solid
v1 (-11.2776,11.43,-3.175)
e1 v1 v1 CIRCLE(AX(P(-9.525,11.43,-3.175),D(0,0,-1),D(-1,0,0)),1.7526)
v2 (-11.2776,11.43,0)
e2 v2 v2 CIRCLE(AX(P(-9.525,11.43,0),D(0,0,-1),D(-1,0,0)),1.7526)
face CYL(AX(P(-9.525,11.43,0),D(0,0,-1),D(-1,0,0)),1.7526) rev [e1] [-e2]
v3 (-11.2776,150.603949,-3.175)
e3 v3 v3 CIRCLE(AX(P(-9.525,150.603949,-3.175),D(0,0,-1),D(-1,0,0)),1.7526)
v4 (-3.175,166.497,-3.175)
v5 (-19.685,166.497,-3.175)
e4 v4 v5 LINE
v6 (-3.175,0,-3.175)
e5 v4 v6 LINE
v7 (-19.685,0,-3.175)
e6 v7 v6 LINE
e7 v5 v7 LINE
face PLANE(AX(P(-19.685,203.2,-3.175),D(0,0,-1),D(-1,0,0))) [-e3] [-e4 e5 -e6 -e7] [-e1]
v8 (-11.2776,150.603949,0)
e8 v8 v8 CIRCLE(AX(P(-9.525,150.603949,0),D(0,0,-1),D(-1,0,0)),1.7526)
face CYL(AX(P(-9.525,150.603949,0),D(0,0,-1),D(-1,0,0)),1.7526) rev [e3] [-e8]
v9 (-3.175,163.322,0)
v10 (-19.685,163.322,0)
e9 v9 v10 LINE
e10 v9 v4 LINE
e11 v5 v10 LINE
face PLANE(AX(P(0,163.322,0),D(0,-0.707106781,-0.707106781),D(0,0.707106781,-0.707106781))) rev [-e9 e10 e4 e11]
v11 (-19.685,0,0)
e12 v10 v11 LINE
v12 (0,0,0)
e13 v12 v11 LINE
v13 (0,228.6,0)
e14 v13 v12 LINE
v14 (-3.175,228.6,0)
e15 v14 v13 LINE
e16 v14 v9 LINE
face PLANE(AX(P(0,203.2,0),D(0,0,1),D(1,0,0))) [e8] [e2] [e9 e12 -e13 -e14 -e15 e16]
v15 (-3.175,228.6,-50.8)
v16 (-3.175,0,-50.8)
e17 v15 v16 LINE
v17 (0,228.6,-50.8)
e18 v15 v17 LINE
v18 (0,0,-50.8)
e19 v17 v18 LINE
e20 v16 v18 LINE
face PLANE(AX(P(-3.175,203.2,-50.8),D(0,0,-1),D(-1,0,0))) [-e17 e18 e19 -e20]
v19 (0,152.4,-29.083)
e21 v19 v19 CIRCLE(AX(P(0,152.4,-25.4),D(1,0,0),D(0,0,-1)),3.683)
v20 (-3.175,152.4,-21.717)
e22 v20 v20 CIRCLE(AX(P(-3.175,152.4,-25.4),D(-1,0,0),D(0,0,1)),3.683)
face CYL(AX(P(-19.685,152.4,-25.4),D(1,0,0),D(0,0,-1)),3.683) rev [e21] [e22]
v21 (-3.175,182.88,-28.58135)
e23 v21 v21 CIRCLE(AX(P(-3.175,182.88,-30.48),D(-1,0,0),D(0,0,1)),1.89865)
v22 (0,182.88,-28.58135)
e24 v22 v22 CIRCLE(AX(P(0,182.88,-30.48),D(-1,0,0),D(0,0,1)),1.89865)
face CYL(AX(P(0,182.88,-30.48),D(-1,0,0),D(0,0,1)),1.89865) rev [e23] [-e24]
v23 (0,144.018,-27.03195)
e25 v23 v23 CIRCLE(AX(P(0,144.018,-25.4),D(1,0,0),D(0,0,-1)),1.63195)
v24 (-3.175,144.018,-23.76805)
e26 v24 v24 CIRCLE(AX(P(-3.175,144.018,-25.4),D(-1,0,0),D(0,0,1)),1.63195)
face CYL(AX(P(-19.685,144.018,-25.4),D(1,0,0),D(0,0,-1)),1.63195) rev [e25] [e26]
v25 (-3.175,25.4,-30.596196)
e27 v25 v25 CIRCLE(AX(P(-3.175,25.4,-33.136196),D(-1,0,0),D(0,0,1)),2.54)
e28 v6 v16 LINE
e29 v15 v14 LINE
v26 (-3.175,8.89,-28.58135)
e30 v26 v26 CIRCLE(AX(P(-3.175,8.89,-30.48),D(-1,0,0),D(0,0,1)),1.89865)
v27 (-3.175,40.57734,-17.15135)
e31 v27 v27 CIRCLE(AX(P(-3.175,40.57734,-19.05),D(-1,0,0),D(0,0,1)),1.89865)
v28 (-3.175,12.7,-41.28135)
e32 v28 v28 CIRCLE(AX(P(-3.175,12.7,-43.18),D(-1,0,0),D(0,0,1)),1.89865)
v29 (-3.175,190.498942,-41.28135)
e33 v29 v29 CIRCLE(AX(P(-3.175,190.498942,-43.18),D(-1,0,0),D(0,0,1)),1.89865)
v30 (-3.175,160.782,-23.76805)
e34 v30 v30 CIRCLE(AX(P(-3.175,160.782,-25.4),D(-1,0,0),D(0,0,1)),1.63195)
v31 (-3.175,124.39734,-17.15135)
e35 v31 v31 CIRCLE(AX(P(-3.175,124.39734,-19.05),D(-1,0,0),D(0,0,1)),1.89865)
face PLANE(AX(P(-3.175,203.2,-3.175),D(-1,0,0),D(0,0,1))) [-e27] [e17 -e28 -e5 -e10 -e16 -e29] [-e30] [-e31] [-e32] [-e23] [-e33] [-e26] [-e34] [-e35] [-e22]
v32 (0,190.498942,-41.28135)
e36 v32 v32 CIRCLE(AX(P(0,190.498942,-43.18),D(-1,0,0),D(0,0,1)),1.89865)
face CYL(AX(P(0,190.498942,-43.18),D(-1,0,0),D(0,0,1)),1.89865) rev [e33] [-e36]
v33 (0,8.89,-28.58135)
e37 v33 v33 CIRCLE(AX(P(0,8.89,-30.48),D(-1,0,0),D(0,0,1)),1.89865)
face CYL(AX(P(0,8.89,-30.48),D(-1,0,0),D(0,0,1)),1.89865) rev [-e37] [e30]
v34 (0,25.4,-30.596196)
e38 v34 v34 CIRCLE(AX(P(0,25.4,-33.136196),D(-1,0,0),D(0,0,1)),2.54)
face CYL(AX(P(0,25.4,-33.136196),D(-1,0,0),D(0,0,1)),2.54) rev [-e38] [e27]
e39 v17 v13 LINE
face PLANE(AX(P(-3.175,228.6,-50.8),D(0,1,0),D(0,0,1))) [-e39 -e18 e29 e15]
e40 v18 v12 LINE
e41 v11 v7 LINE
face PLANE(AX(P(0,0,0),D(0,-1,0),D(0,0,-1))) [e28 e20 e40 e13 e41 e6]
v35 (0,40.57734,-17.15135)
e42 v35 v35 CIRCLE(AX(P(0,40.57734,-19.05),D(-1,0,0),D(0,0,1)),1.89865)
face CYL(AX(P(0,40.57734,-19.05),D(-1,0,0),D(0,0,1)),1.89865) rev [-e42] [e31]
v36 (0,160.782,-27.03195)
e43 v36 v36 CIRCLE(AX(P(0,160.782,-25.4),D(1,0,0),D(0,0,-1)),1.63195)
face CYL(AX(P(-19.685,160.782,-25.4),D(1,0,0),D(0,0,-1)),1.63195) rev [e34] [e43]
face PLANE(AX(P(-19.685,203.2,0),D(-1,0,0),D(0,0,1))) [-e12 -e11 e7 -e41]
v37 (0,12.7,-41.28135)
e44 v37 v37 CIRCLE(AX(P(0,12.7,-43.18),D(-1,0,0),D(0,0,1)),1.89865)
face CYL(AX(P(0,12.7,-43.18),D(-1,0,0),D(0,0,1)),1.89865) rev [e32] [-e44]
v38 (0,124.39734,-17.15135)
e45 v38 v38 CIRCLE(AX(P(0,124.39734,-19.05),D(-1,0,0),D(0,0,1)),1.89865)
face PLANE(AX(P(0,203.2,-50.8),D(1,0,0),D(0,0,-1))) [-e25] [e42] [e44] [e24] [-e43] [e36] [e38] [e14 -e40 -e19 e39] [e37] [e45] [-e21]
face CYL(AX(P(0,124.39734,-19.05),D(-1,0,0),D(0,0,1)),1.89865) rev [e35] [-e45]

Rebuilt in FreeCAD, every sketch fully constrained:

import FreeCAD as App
import Part
import Sketcher

V = App.Vector
Q = App.Units.Quantity


def add_polygon(sketch, points):
    """Adds a closed chain of lines whose ends are joined by coincident constraints."""
    first, n = sketch.GeometryCount, len(points)
    for a, b in zip(points, points[1:] + points[:1]):
        sketch.addGeometry(Part.LineSegment(App.Vector(*a, 0), App.Vector(*b, 0)), False)
    for i in range(n):
        sketch.addConstraint(Sketcher.Constraint("Coincident", first + i, 2, first + (i + 1) % n, 1))

doc = App.newDocument("Part")
body = doc.addObject("PartDesign::Body", "Body")

# Sketch on XZ plane
sketch1 = doc.addObject("Sketcher::SketchObject", "Sketch")
body.addObject(sketch1)
sketch1.AttachmentSupport = (doc.XZ_Plane, [""])
sketch1.MapMode = "FlatFace"
add_polygon(sketch1, [(-19.7, 0), (0, 0), (0, -50.8), (-3.2, -50.8), (-3.2, -3.2), (-19.7, -3.2)])  # lines 0-5
sketch1.addConstraint([
    Sketcher.Constraint("Horizontal", 0),
    Sketcher.Constraint("Vertical", 1),
    Sketcher.Constraint("Horizontal", 2),
    Sketcher.Constraint("Vertical", 3),
    Sketcher.Constraint("Horizontal", 4),
    Sketcher.Constraint("Vertical", 5),
    Sketcher.Constraint("Coincident", 0, 2, -1, 1),
    Sketcher.Constraint("Equal", 2, 5),
    Sketcher.Constraint("DistanceY", 1, 2, 1, 1, Q("2 in")),
    Sketcher.Constraint("DistanceX", 4, 2, 4, 1, Q("0.65 in")),
    Sketcher.Constraint("DistanceX", 0, 1, 0, 2, Q("0.775 in")),
])
pad1 = doc.addObject("PartDesign::Pad", "Pad")
body.addObject(pad1)
pad1.Profile = sketch1
pad1.Length = Q("8 in")
pad1.Reversed = True

# Sketch on YZ plane
sketch2 = doc.addObject("Sketcher::SketchObject", "Sketch001")
body.addObject(sketch2)
sketch2.AttachmentSupport = (doc.YZ_Plane, [""])
sketch2.MapMode = "FlatFace"
sketch2.AttachmentOffset = App.Placement(V(0, 0, -0.125 * 25.4), App.Rotation())
add_polygon(sketch2, [(214, -51), (163, 0), (163, 33), (256, 33), (256, -61), (214, -61)])  # lines 0-5
sketch2.addConstraint([
    Sketcher.Constraint("Vertical", 1),
    Sketcher.Constraint("Horizontal", 2),
    Sketcher.Constraint("Vertical", 3),
    Sketcher.Constraint("Horizontal", 4),
    Sketcher.Constraint("Vertical", 5),
    Sketcher.Constraint("PointOnObject", 0, 2, -1),
    Sketcher.Constraint("DistanceY", 5, 2, -1, 1, Q("2 in")),
    Sketcher.Constraint("Angle", 0, Q("135 deg")),
    Sketcher.Constraint("DistanceX", -1, 1, 0, 2, Q("6.43 in")),
    Sketcher.Constraint("DistanceY", 1, 1, 1, 2, Q("33.196572 mm")),
    Sketcher.Constraint("DistanceY", 3, 2, 3, 1, Q("94.01982 mm")),
    Sketcher.Constraint("DistanceX", 2, 1, 2, 2, Q("92.725204 mm")),
])
pocket1 = doc.addObject("PartDesign::Pocket", "Pocket")
body.addObject(pocket1)
pocket1.Profile = sketch2
pocket1.Type = "ThroughAll"
pocket1.Midplane = True

# Sketch on YZ plane
sketch3 = doc.addObject("Sketcher::SketchObject", "Sketch002")
body.addObject(sketch3)
sketch3.AttachmentSupport = (doc.YZ_Plane, [""])
sketch3.MapMode = "FlatFace"
sketch3.addGeometry([
    Part.Circle(V(152.4, -25.4, 0), V(0, 0, 1), 3.7),
    Part.Circle(V(160.8, -25.4, 0), V(0, 0, 1), 1.6),
    Part.Circle(V(144, -25.4, 0), V(0, 0, 1), 1.6),
], False)
sketch3.addConstraint([
    Sketcher.Constraint("Equal", 1, 2),
    Sketcher.Constraint("Horizontal", 0, 3, 1, 3),
    Sketcher.Constraint("Horizontal", 1, 3, 2, 3),
    Sketcher.Constraint("Diameter", 0, Q("0.29 in")),
    Sketcher.Constraint("DistanceX", -1, 1, 0, 3, Q("6 in")),
    Sketcher.Constraint("DistanceY", 0, 3, -1, 1, Q("1 in")),
    Sketcher.Constraint("Diameter", 1, Q("0.1285 in")),
    Sketcher.Constraint("DistanceX", -1, 1, 1, 3, Q("6.33 in")),
    Sketcher.Constraint("DistanceX", -1, 1, 2, 3, Q("5.67 in")),
])
pocket2 = doc.addObject("PartDesign::Pocket", "Pocket001")
body.addObject(pocket2)
pocket2.Profile = sketch3
pocket2.Type = "ThroughAll"

# Sketch on YZ plane
sketch4 = doc.addObject("Sketcher::SketchObject", "Sketch003")
body.addObject(sketch4)
sketch4.AttachmentSupport = (doc.YZ_Plane, [""])
sketch4.MapMode = "FlatFace"
sketch4.AttachmentOffset = App.Placement(V(0, 0, -0.125 * 25.4), App.Rotation())
sketch4.addGeometry([
    Part.Circle(V(182.9, -30.5, 0), V(0, 0, 1), 1.9),
    Part.Circle(V(8.9, -30.5, 0), V(0, 0, 1), 1.9),
], False)
sketch4.addConstraint([
    Sketcher.Constraint("Equal", 0, 1),
    Sketcher.Constraint("Horizontal", 0, 3, 1, 3),
    Sketcher.Constraint("Diameter", 0, Q("0.1495 in")),
    Sketcher.Constraint("DistanceX", -1, 1, 0, 3, Q("7.2 in")),
    Sketcher.Constraint("DistanceY", 0, 3, -1, 1, Q("1.2 in")),
    Sketcher.Constraint("DistanceX", -1, 1, 1, 3, Q("0.35 in")),
])
pocket3 = doc.addObject("PartDesign::Pocket", "Pocket002")
body.addObject(pocket3)
pocket3.Profile = sketch4
pocket3.Type = "ThroughAll"
pocket3.Reversed = True

# Sketch on YZ plane
sketch5 = doc.addObject("Sketcher::SketchObject", "Sketch004")
body.addObject(sketch5)
sketch5.AttachmentSupport = (doc.YZ_Plane, [""])
sketch5.MapMode = "FlatFace"
sketch5.AttachmentOffset = App.Placement(V(0, 0, -0.125 * 25.4), App.Rotation())
sketch5.addGeometry([
    Part.Circle(V(40.6, -19.1, 0), V(0, 0, 1), 1.9),
    Part.Circle(V(124.4, -19.1, 0), V(0, 0, 1), 1.9),
], False)
sketch5.addConstraint([
    Sketcher.Constraint("Equal", 0, 1),
    Sketcher.Constraint("Horizontal", 0, 3, 1, 3),
    Sketcher.Constraint("Diameter", 0, Q("0.1495 in")),
    Sketcher.Constraint("DistanceX", 0, 3, 1, 3, Q("3.3 in")),
    Sketcher.Constraint("DistanceY", 0, 3, -1, 1, Q("0.75 in")),
    Sketcher.Constraint("DistanceX", -1, 1, 0, 3, Q("40.57734 mm")),
])
pocket4 = doc.addObject("PartDesign::Pocket", "Pocket003")
body.addObject(pocket4)
pocket4.Profile = sketch5
pocket4.Type = "ThroughAll"
pocket4.Reversed = True

# Sketch on XY plane
sketch6 = doc.addObject("Sketcher::SketchObject", "Sketch005")
body.addObject(sketch6)
sketch6.AttachmentSupport = (doc.XY_Plane, [""])
sketch6.MapMode = "FlatFace"
sketch6.AttachmentOffset = App.Placement(V(0, 0, -0.125 * 25.4), App.Rotation())
sketch6.addGeometry([
    Part.Circle(V(-9.5, 11.4, 0), V(0, 0, 1), 1.8),
    Part.Circle(V(-9.5, 150.6, 0), V(0, 0, 1), 1.8),
], False)
sketch6.addConstraint([
    Sketcher.Constraint("Equal", 0, 1),
    Sketcher.Constraint("Vertical", 0, 3, 1, 3),
    Sketcher.Constraint("Diameter", 0, Q("0.138 in")),
    Sketcher.Constraint("DistanceY", -1, 1, 0, 3, Q("0.45 in")),
    Sketcher.Constraint("DistanceX", 0, 3, -1, 1, Q("0.375 in")),
    Sketcher.Constraint("DistanceY", -1, 1, 1, 3, Q("150.603949 mm")),
])
pocket5 = doc.addObject("PartDesign::Pocket", "Pocket004")
body.addObject(pocket5)
pocket5.Profile = sketch6
pocket5.Type = "ThroughAll"
pocket5.Reversed = True

# Sketch on YZ plane
sketch7 = doc.addObject("Sketcher::SketchObject", "Sketch006")
body.addObject(sketch7)
sketch7.AttachmentSupport = (doc.YZ_Plane, [""])
sketch7.MapMode = "FlatFace"
add_polygon(sketch7, [(229, 0), (163, 0), (203, -40), (203, -51), (229, -51)])  # lines 0-4
sketch7.addConstraint([
    Sketcher.Constraint("Horizontal", 0),
    Sketcher.Constraint("Vertical", 2),
    Sketcher.Constraint("Horizontal", 3),
    Sketcher.Constraint("Vertical", 4),
    Sketcher.Constraint("PointOnObject", 0, 2, -1),
    Sketcher.Constraint("DistanceX", 3, 1, 3, 2, Q("1 in")),
    Sketcher.Constraint("DistanceY", 4, 1, 4, 2, Q("2 in")),
    Sketcher.Constraint("DistanceX", -1, 1, 1, 2, Q("8 in")),
    Sketcher.Constraint("Angle", 1, Q("-45 deg")),
    Sketcher.Constraint("DistanceX", 0, 2, 0, 1, Q("2.57 in")),
])
pad2 = doc.addObject("PartDesign::Pad", "Pad001")
body.addObject(pad2)
pad2.Profile = sketch7
pad2.Length = Q("0.125 in")
pad2.Reversed = True

# Sketch on YZ plane
sketch8 = doc.addObject("Sketcher::SketchObject", "Sketch007")
body.addObject(sketch8)
sketch8.AttachmentSupport = (doc.YZ_Plane, [""])
sketch8.MapMode = "FlatFace"
sketch8.AttachmentOffset = App.Placement(V(0, 0, -0.125 * 25.4), App.Rotation())
sketch8.addGeometry(Part.Circle(V(25.4, -33.1, 0), V(0, 0, 1), 2.5), False)
sketch8.addConstraint([
    Sketcher.Constraint("Diameter", 0, Q("0.2 in")),
    Sketcher.Constraint("DistanceX", -1, 1, 0, 3, Q("1 in")),
    Sketcher.Constraint("DistanceY", 0, 3, -1, 1, Q("33.136196 mm")),
])
pocket6 = doc.addObject("PartDesign::Pocket", "Pocket005")
body.addObject(pocket6)
pocket6.Profile = sketch8
pocket6.Type = "ThroughAll"
pocket6.Reversed = True

# Sketch on YZ plane
sketch9 = doc.addObject("Sketcher::SketchObject", "Sketch008")
body.addObject(sketch9)
sketch9.AttachmentSupport = (doc.YZ_Plane, [""])
sketch9.MapMode = "FlatFace"
sketch9.AttachmentOffset = App.Placement(V(0, 0, -0.125 * 25.4), App.Rotation())
sketch9.addGeometry([
    Part.Circle(V(12.7, -43.2, 0), V(0, 0, 1), 1.9),
    Part.Circle(V(190.5, -43.2, 0), V(0, 0, 1), 1.9),
], False)
sketch9.addConstraint([
    Sketcher.Constraint("Equal", 0, 1),
    Sketcher.Constraint("Horizontal", 0, 3, 1, 3),
    Sketcher.Constraint("Diameter", 0, Q("0.1495 in")),
    Sketcher.Constraint("DistanceX", -1, 1, 0, 3, Q("0.5 in")),
    Sketcher.Constraint("DistanceY", 0, 3, -1, 1, Q("1.7 in")),
    Sketcher.Constraint("DistanceX", -1, 1, 1, 3, Q("190.498942 mm")),
])
pocket7 = doc.addObject("PartDesign::Pocket", "Pocket006")
body.addObject(pocket7)
pocket7.Profile = sketch9
pocket7.Type = "ThroughAll"
pocket7.Reversed = True

doc.recompute()
